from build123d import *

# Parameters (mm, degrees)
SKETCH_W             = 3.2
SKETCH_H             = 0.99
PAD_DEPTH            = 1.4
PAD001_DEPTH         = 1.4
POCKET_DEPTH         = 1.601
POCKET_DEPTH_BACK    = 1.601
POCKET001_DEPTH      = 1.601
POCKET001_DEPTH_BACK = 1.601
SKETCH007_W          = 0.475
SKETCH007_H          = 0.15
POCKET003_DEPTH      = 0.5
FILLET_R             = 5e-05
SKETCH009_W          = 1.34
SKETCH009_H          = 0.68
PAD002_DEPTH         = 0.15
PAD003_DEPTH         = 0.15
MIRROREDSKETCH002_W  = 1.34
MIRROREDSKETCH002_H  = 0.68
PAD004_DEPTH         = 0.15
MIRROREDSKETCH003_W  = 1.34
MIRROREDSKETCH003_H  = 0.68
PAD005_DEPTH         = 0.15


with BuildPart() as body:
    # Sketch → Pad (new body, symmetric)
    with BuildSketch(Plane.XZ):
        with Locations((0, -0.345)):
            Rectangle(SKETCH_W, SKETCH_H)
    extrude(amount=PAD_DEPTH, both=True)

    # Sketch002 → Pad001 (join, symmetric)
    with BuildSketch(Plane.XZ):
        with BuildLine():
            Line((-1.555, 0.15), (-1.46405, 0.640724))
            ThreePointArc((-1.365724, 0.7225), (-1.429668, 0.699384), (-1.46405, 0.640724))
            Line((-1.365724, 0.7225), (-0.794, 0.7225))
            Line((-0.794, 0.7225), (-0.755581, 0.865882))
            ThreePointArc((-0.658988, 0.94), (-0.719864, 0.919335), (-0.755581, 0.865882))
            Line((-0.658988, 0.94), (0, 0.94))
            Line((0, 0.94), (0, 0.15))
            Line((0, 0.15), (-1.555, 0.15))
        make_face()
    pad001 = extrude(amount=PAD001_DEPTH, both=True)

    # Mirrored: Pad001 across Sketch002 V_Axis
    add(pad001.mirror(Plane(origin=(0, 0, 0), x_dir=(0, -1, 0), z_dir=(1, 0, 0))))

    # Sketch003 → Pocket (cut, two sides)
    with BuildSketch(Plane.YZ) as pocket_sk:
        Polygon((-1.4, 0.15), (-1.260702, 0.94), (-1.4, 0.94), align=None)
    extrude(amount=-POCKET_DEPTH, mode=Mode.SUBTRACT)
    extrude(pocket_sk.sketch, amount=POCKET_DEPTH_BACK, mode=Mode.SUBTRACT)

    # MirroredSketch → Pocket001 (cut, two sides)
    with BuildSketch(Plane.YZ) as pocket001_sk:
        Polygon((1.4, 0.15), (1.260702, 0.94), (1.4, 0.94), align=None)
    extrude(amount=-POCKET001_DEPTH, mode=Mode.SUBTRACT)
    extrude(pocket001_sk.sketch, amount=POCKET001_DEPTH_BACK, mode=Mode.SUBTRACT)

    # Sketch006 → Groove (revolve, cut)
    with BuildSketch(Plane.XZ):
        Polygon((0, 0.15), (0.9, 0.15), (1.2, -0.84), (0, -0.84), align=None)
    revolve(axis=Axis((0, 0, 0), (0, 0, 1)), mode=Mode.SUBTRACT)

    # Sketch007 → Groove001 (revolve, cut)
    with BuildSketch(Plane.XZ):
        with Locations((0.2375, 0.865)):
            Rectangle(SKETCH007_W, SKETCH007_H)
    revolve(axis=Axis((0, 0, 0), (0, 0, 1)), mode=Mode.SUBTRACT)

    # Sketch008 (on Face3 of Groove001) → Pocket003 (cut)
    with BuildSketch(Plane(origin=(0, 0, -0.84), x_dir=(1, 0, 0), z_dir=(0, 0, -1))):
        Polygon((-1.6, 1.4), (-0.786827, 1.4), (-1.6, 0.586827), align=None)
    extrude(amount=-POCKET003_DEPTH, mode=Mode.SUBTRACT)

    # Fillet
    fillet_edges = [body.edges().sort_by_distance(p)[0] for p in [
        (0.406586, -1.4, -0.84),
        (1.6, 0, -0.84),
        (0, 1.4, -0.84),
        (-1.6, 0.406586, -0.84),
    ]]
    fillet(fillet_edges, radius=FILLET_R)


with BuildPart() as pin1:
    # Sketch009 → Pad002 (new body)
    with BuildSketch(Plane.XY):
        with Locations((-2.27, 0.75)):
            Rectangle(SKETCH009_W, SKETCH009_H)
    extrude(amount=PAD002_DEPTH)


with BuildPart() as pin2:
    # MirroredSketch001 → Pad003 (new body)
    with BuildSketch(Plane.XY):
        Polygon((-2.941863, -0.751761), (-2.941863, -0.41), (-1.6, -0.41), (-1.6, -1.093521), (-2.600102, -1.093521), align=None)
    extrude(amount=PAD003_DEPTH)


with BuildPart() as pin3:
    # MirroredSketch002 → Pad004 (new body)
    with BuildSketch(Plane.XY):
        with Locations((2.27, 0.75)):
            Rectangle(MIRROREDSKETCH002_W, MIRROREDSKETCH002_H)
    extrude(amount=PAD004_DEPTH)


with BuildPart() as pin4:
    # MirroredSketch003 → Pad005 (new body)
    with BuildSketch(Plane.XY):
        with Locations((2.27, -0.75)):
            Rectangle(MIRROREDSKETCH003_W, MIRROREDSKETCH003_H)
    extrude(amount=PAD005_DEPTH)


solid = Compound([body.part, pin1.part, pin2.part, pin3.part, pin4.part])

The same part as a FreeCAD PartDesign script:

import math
import FreeCAD as App
import Part
import Sketcher
Q = App.Units.Quantity


def edges_at(feature, points):
    """Names of the edges that pass closest to the given points."""
    edges = feature.Shape.Edges
    near = lambda p: min(range(len(edges)), key=lambda i: edges[i].distToShape(Part.Vertex(*p))[0])
    return sorted({f"Edge{near(p) + 1}" for p in points})

doc = App.newDocument("Part")
body = doc.addObject("PartDesign::Body", "Body")

# Sketch on XZ plane
sketch1 = body.newObject("Sketcher::SketchObject", "Sketch")
sketch1.AttachmentSupport = (doc.getObject("XZ_Plane"), [""])
sketch1.MapMode = "FlatFace"
sketch1.addGeometry([
    Part.LineSegment(App.Vector(-1.6, 0.1, 0), App.Vector(-1.6, -0.8, 0)),
    Part.LineSegment(App.Vector(-1.6, -0.8, 0), App.Vector(1.6, -0.8, 0)),
    Part.LineSegment(App.Vector(1.6, -0.8, 0), App.Vector(1.6, 0.1, 0)),
    Part.LineSegment(App.Vector(1.6, 0.1, 0), App.Vector(-1.6, 0.1, 0)),
], False)
sketch1.addConstraint([
    Sketcher.Constraint("Coincident", 0, 2, 1, 1),
    Sketcher.Constraint("Coincident", 1, 2, 2, 1),
    Sketcher.Constraint("Coincident", 2, 2, 3, 1),
    Sketcher.Constraint("Coincident", 3, 2, 0, 1),
    Sketcher.Constraint("Vertical", 0),
    Sketcher.Constraint("Horizontal", 1),
    Sketcher.Constraint("Vertical", 2),
    Sketcher.Constraint("Horizontal", 3),
    Sketcher.Constraint("DistanceX", 1, 1, 1, 2, Q("3.2 mm")),
    Sketcher.Constraint("DistanceY", 0, 2, 0, 1, Q("0.99 mm")),
    Sketcher.Constraint("DistanceX", 0, 2, -1, 1, Q("1.6 mm")),
    Sketcher.Constraint("DistanceY", 0, 2, -1, 1, Q("0.84 mm")),
])
pad1 = body.newObject("PartDesign::Pad", "Pad")
pad1.Profile = sketch1
pad1.Length = 2.8
pad1.Midplane = True

# Sketch on XZ plane
sketch2 = body.newObject("Sketcher::SketchObject", "Sketch001")
sketch2.AttachmentSupport = (doc.getObject("XZ_Plane"), [""])
sketch2.MapMode = "FlatFace"
sketch2.addGeometry([
    Part.LineSegment(App.Vector(-1.46, 0.64, 0), App.Vector(-1.55, 0.15, 0)),  # 0
    Part.LineSegment(App.Vector(-1.55, 0.15, 0), App.Vector(0, 0.15, 0)),  # 1
    Part.LineSegment(App.Vector(0, 0.15, 0), App.Vector(0, 0.94, 0)),  # 2
    Part.LineSegment(App.Vector(0, 0.94, 0), App.Vector(-0.66, 0.94, 0)),  # 3
    Part.ArcOfCircle(Part.Circle(App.Vector(-0.66, 0.84, 0), App.Vector(0, 0, 1), 0.1), math.radians(90), math.radians(165)),  # 4
    Part.LineSegment(App.Vector(-0.76, 0.87, 0), App.Vector(-0.79, 0.72, 0)),  # 5
    Part.LineSegment(App.Vector(-0.79, 0.72, 0), App.Vector(-1.37, 0.72, 0)),  # 6
    Part.ArcOfCircle(Part.Circle(App.Vector(-1.37, 0.62, 0), App.Vector(0, 0, 1), 0.1), math.radians(90), math.radians(169)),  # 7
], False)
sketch2.addConstraint([
    Sketcher.Constraint("Coincident", 0, 2, 1, 1),
    Sketcher.Constraint("Coincident", 1, 2, 2, 1),
    Sketcher.Constraint("Coincident", 2, 2, 3, 1),
    Sketcher.Constraint("Coincident", 3, 2, 4, 1),
    Sketcher.Constraint("Coincident", 4, 2, 5, 1),
    Sketcher.Constraint("Coincident", 5, 2, 6, 1),
    Sketcher.Constraint("Coincident", 6, 2, 7, 1),
    Sketcher.Constraint("Coincident", 7, 2, 0, 1),
    Sketcher.Constraint("Horizontal", 1),
    Sketcher.Constraint("Vertical", 2),
    Sketcher.Constraint("Horizontal", 3),
    Sketcher.Constraint("Horizontal", 6),
    Sketcher.Constraint("Equal", 4, 7),
    Sketcher.Constraint("PointOnObject", 1, 2, -2),
    Sketcher.Constraint("Vertical", 4, 3, 3, 2),
    Sketcher.Constraint("Vertical", 7, 3, 6, 2),
    Sketcher.Constraint("Radius", 7, Q("0.100002 mm")),
    Sketcher.Constraint("DistanceY", 2, 1, 2, 2, Q("0.79 mm")),
    Sketcher.Constraint("DistanceX", 1, 1, 1, 2, Q("1.555 mm")),
    Sketcher.Constraint("DistanceY", -1, 1, 0, 2, Q("0.15 mm")),
    Sketcher.Constraint("DistanceX", 5, 2, -1, 1, Q("0.794 mm")),
    Sketcher.Constraint("DistanceX", 3, 2, 3, 1, Q("0.658988 mm")),
    Sketcher.Constraint("DistanceY", -1, 1, 7, 3, Q("0.622498 mm")),
    Sketcher.Constraint("Distance", 0, Q("0.499081 mm")),
    Sketcher.Constraint("Distance", 5, Q("0.14844 mm")),
    Sketcher.Constraint("DistanceX", 6, 2, 6, 1, Q("0.571724 mm")),
])
pad2 = body.newObject("PartDesign::Pad", "Pad001")
pad2.Profile = sketch2
pad2.Length = 2.8
pad2.Midplane = True
doc.recompute()

mirrored = body.newObject("PartDesign::Mirrored", "Mirrored")
mirrored.Originals = [pad2]
mirrored.MirrorPlane = (doc.getObject("YZ_Plane"), [""])
body.Tip = mirrored

# Sketch on YZ plane
sketch3 = body.newObject("Sketcher::SketchObject", "Sketch002")
sketch3.AttachmentSupport = (doc.getObject("YZ_Plane"), [""])
sketch3.MapMode = "FlatFace"
sketch3.addGeometry([
    Part.LineSegment(App.Vector(-1.4, 0.15, 0), App.Vector(-1.26, 0.94, 0)),
    Part.LineSegment(App.Vector(-1.26, 0.94, 0), App.Vector(-1.4, 0.94, 0)),
    Part.LineSegment(App.Vector(-1.4, 0.94, 0), App.Vector(-1.4, 0.15, 0)),
], False)
sketch3.addConstraint([
    Sketcher.Constraint("Coincident", 0, 2, 1, 1),
    Sketcher.Constraint("Coincident", 1, 2, 2, 1),
    Sketcher.Constraint("Coincident", 2, 2, 0, 1),
    Sketcher.Constraint("Horizontal", 1),
    Sketcher.Constraint("Vertical", 2),
    Sketcher.Constraint("DistanceY", 2, 2, 2, 1, Q("0.79 mm")),
    Sketcher.Constraint("DistanceX", 1, 2, -1, 1, Q("1.4 mm")),
    Sketcher.Constraint("DistanceY", -1, 1, 0, 2, Q("0.94 mm")),
    Sketcher.Constraint("DistanceX", 1, 2, 1, 1, Q("0.139298 mm")),
])
pocket1 = body.newObject("PartDesign::Pocket", "Pocket")
pocket1.Profile = sketch3
pocket1.Type = "ThroughAll"
pocket1.Midplane = True

# Sketch on YZ plane
sketch4 = body.newObject("Sketcher::SketchObject", "Sketch003")
sketch4.AttachmentSupport = (doc.getObject("YZ_Plane"), [""])
sketch4.MapMode = "FlatFace"
sketch4.addGeometry([
    Part.LineSegment(App.Vector(1.26, 0.94, 0), App.Vector(1.4, 0.15, 0)),
    Part.LineSegment(App.Vector(1.4, 0.15, 0), App.Vector(1.4, 0.94, 0)),
    Part.LineSegment(App.Vector(1.4, 0.94, 0), App.Vector(1.26, 0.94, 0)),
], False)
sketch4.addConstraint([
    Sketcher.Constraint("Coincident", 0, 2, 1, 1),
    Sketcher.Constraint("Coincident", 1, 2, 2, 1),
    Sketcher.Constraint("Coincident", 2, 2, 0, 1),
    Sketcher.Constraint("Vertical", 1),
    Sketcher.Constraint("Horizontal", 2),
    Sketcher.Constraint("DistanceY", 1, 1, 1, 2, Q("0.79 mm")),
    Sketcher.Constraint("DistanceX", -1, 1, 0, 2, Q("1.4 mm")),
    Sketcher.Constraint("DistanceY", -1, 1, 0, 2, Q("0.15 mm")),
    Sketcher.Constraint("DistanceX", 2, 2, 2, 1, Q("0.139298 mm")),
])
pocket2 = body.newObject("PartDesign::Pocket", "Pocket001")
pocket2.Profile = sketch4
pocket2.Type = "ThroughAll"
pocket2.Midplane = True

# Sketch on XZ plane
sketch5 = body.newObject("Sketcher::SketchObject", "Sketch004")
sketch5.AttachmentSupport = (doc.getObject("XZ_Plane"), [""])
sketch5.MapMode = "FlatFace"
sketch5.addGeometry([
    Part.LineSegment(App.Vector(0.9, 0.1, 0), App.Vector(0, 0.1, 0)),
    Part.LineSegment(App.Vector(0, 0.1, 0), App.Vector(0, -0.8, 0)),
    Part.LineSegment(App.Vector(0, -0.8, 0), App.Vector(1.2, -0.8, 0)),
    Part.LineSegment(App.Vector(1.2, -0.8, 0), App.Vector(0.9, 0.1, 0)),
], False)
sketch5.addConstraint([
    Sketcher.Constraint("Coincident", 0, 2, 1, 1),
    Sketcher.Constraint("Coincident", 1, 2, 2, 1),
    Sketcher.Constraint("Coincident", 2, 2, 3, 1),
    Sketcher.Constraint("Coincident", 3, 2, 0, 1),
    Sketcher.Constraint("Horizontal", 0),
    Sketcher.Constraint("Vertical", 1),
    Sketcher.Constraint("Horizontal", 2),
    Sketcher.Constraint("PointOnObject", 0, 2, -2),
    Sketcher.Constraint("DistanceX", 0, 2, 0, 1, Q("0.9 mm")),
    Sketcher.Constraint("DistanceX", 2, 1, 2, 2, Q("1.2 mm")),
    Sketcher.Constraint("DistanceY", 1, 2, 1, 1, Q("0.99 mm")),
    Sketcher.Constraint("DistanceY", -1, 1, 0, 2, Q("0.15 mm")),
])
groove = body.newObject("PartDesign::Groove", "Groove")
groove.Profile = sketch5
groove.ReferenceAxis = (sketch5, ["V_Axis"])
groove.Angle = 360

# Sketch on XZ plane
sketch6 = body.newObject("Sketcher::SketchObject", "Sketch005")
sketch6.AttachmentSupport = (doc.getObject("XZ_Plane"), [""])
sketch6.MapMode = "FlatFace"
sketch6.addGeometry([
    Part.LineSegment(App.Vector(0, 0.94, 0), App.Vector(0, 0.79, 0)),
    Part.LineSegment(App.Vector(0, 0.79, 0), App.Vector(0.47, 0.79, 0)),
    Part.LineSegment(App.Vector(0.47, 0.79, 0), App.Vector(0.47, 0.94, 0)),
    Part.LineSegment(App.Vector(0.47, 0.94, 0), App.Vector(0, 0.94, 0)),
], False)
sketch6.addConstraint([
    Sketcher.Constraint("Coincident", 0, 2, 1, 1),
    Sketcher.Constraint("Coincident", 1, 2, 2, 1),
    Sketcher.Constraint("Coincident", 2, 2, 3, 1),
    Sketcher.Constraint("Coincident", 3, 2, 0, 1),
    Sketcher.Constraint("Vertical", 0),
    Sketcher.Constraint("Horizontal", 1),
    Sketcher.Constraint("Vertical", 2),
    Sketcher.Constraint("Horizontal", 3),
    Sketcher.Constraint("PointOnObject", 0, 2, -2),
    Sketcher.Constraint("DistanceY", 0, 2, 0, 1, Q("0.15 mm")),
    Sketcher.Constraint("DistanceX", 1, 1, 1, 2, Q("0.475 mm")),
    Sketcher.Constraint("DistanceY", -1, 1, 0, 2, Q("0.79 mm")),
])
groove2 = body.newObject("PartDesign::Groove", "Groove001")
groove2.Profile = sketch6
groove2.ReferenceAxis = (sketch6, ["V_Axis"])
groove2.Angle = 360

# Sketch on XY plane
sketch7 = body.newObject("Sketcher::SketchObject", "Sketch006")
sketch7.AttachmentSupport = (doc.getObject("XY_Plane"), [""])
sketch7.MapMode = "FlatFace"
sketch7.AttachmentOffset = App.Placement(App.Vector(0, 0, -0.84), App.Rotation())
sketch7.addGeometry([
    Part.LineSegment(App.Vector(-0.8, -1.4, 0), App.Vector(-1.6, -1.4, 0)),
    Part.LineSegment(App.Vector(-1.6, -1.4, 0), App.Vector(-1.6, -0.6, 0)),
    Part.LineSegment(App.Vector(-1.6, -0.6, 0), App.Vector(-0.8, -1.4, 0)),
], False)
sketch7.addConstraint([
    Sketcher.Constraint("Coincident", 0, 2, 1, 1),
    Sketcher.Constraint("Coincident", 1, 2, 2, 1),
    Sketcher.Constraint("Coincident", 2, 2, 0, 1),
    Sketcher.Constraint("Horizontal", 0),
    Sketcher.Constraint("Vertical", 1),
    Sketcher.Constraint("Equal", 0, 1),
    Sketcher.Constraint("DistanceX", 0, 2, -1, 1, Q("1.6 mm")),
    Sketcher.Constraint("DistanceY", 0, 2, -1, 1, Q("1.4 mm")),
    Sketcher.Constraint("Distance", 2, Q("1.15 mm")),
])
pocket3 = body.newObject("PartDesign::Pocket", "Pocket002")
pocket3.Profile = sketch7
pocket3.Length = 0.5
pocket3.Reversed = True
doc.recompute()

fillet = body.newObject("PartDesign::Fillet", "Fillet")
fillet.Base = (pocket3, edges_at(pocket3, [
    (0.407, -1.4, -0.84),
    (1.6, 0, -0.84),
    (0, 1.4, -0.84),
    (-1.6, 0.407, -0.84),
]))
fillet.Radius = 0.00005
body2 = doc.addObject("PartDesign::Body", "Body001")

# Sketch on XY plane
sketch8 = body2.newObject("Sketcher::SketchObject", "Sketch007")
sketch8.AttachmentSupport = (doc.getObject("XY_Plane001"), [""])
sketch8.MapMode = "FlatFace"
sketch8.addGeometry([
    Part.LineSegment(App.Vector(-2.9, 1.1, 0), App.Vector(-2.9, 0.4, 0)),
    Part.LineSegment(App.Vector(-2.9, 0.4, 0), App.Vector(-1.6, 0.4, 0)),
    Part.LineSegment(App.Vector(-1.6, 0.4, 0), App.Vector(-1.6, 1.1, 0)),
    Part.LineSegment(App.Vector(-1.6, 1.1, 0), App.Vector(-2.9, 1.1, 0)),
], False)
sketch8.addConstraint([
    Sketcher.Constraint("Coincident", 0, 2, 1, 1),
    Sketcher.Constraint("Coincident", 1, 2, 2, 1),
    Sketcher.Constraint("Coincident", 2, 2, 3, 1),
    Sketcher.Constraint("Coincident", 3, 2, 0, 1),
    Sketcher.Constraint("Vertical", 0),
    Sketcher.Constraint("Horizontal", 1),
    Sketcher.Constraint("Vertical", 2),
    Sketcher.Constraint("Horizontal", 3),
    Sketcher.Constraint("DistanceX", 1, 1, 1, 2, Q("1.34 mm")),
    Sketcher.Constraint("DistanceY", 0, 2, 0, 1, Q("0.68 mm")),
    Sketcher.Constraint("DistanceX", 1, 2, -1, 1, Q("1.6 mm")),
    Sketcher.Constraint("DistanceY", -1, 1, 0, 2, Q("0.41 mm")),
])
pad3 = body2.newObject("PartDesign::Pad", "Pad002")
pad3.Profile = sketch8
pad3.Length = 0.15
body3 = doc.addObject("PartDesign::Body", "Body002")

# Sketch on XY plane
sketch9 = body3.newObject("Sketcher::SketchObject", "Sketch008")
sketch9.AttachmentSupport = (doc.getObject("XY_Plane002"), [""])
sketch9.MapMode = "FlatFace"
sketch9.addGeometry([
    Part.LineSegment(App.Vector(-2.94, -0.41, 0), App.Vector(-2.94, -0.75, 0)),  # 0
    Part.LineSegment(App.Vector(-2.94, -0.75, 0), App.Vector(-2.6, -1.09, 0)),  # 1
    Part.LineSegment(App.Vector(-2.6, -1.09, 0), App.Vector(-1.6, -1.09, 0)),  # 2
    Part.LineSegment(App.Vector(-1.6, -1.09, 0), App.Vector(-1.6, -0.41, 0)),  # 3
    Part.LineSegment(App.Vector(-1.6, -0.41, 0), App.Vector(-2.94, -0.41, 0)),  # 4
], False)
sketch9.addConstraint([
    Sketcher.Constraint("Coincident", 0, 2, 1, 1),
    Sketcher.Constraint("Coincident", 1, 2, 2, 1),
    Sketcher.Constraint("Coincident", 2, 2, 3, 1),
    Sketcher.Constraint("Coincident", 3, 2, 4, 1),
    Sketcher.Constraint("Coincident", 4, 2, 0, 1),
    Sketcher.Constraint("Vertical", 0),
    Sketcher.Constraint("Horizontal", 2),
    Sketcher.Constraint("Vertical", 3),
    Sketcher.Constraint("Horizontal", 4),
    Sketcher.Constraint("DistanceX", 2, 2, -1, 1, Q("1.6 mm")),
    Sketcher.Constraint("DistanceY", 3, 2, -1, 1, Q("0.41 mm")),
    Sketcher.Constraint("DistanceY", 0, 2, 0, 1, Q("0.341761 mm")),
    Sketcher.Constraint("DistanceY", 3, 1, 3, 2, Q("0.683521 mm")),
    Sketcher.Constraint("DistanceX", 2, 1, 2, 2, Q("1.000102 mm")),
    Sketcher.Constraint("DistanceX", 4, 2, 4, 1, Q("1.341863 mm")),
])
pad4 = body3.newObject("PartDesign::Pad", "Pad003")
pad4.Profile = sketch9
pad4.Length = 0.15
body4 = doc.addObject("PartDesign::Body", "Body003")

# Sketch on XY plane
sketch10 = body4.newObject("Sketcher::SketchObject", "Sketch009")
sketch10.AttachmentSupport = (doc.getObject("XY_Plane003"), [""])
sketch10.MapMode = "FlatFace"
sketch10.addGeometry([
    Part.LineSegment(App.Vector(1.6, 1.1, 0), App.Vector(1.6, 0.4, 0)),
    Part.LineSegment(App.Vector(1.6, 0.4, 0), App.Vector(2.9, 0.4, 0)),
    Part.LineSegment(App.Vector(2.9, 0.4, 0), App.Vector(2.9, 1.1, 0)),
    Part.LineSegment(App.Vector(2.9, 1.1, 0), App.Vector(1.6, 1.1, 0)),
], False)
sketch10.addConstraint([
    Sketcher.Constraint("Coincident", 0, 2, 1, 1),
    Sketcher.Constraint("Coincident", 1, 2, 2, 1),
    Sketcher.Constraint("Coincident", 2, 2, 3, 1),
    Sketcher.Constraint("Coincident", 3, 2, 0, 1),
    Sketcher.Constraint("Vertical", 0),
    Sketcher.Constraint("Horizontal", 1),
    Sketcher.Constraint("Vertical", 2),
    Sketcher.Constraint("Horizontal", 3),
    Sketcher.Constraint("DistanceX", 1, 1, 1, 2, Q("1.34 mm")),
    Sketcher.Constraint("DistanceY", 0, 2, 0, 1, Q("0.68 mm")),
    Sketcher.Constraint("DistanceX", -1, 1, 0, 2, Q("1.6 mm")),
    Sketcher.Constraint("DistanceY", -1, 1, 0, 2, Q("0.41 mm")),
])
pad5 = body4.newObject("PartDesign::Pad", "Pad004")
pad5.Profile = sketch10
pad5.Length = 0.15
body5 = doc.addObject("PartDesign::Body", "Body004")

# Sketch on XY plane
sketch11 = body5.newObject("Sketcher::SketchObject", "Sketch010")
sketch11.AttachmentSupport = (doc.getObject("XY_Plane004"), [""])
sketch11.MapMode = "FlatFace"
sketch11.addGeometry([
    Part.LineSegment(App.Vector(1.6, -0.4, 0), App.Vector(1.6, -1.1, 0)),
    Part.LineSegment(App.Vector(1.6, -1.1, 0), App.Vector(2.9, -1.1, 0)),
    Part.LineSegment(App.Vector(2.9, -1.1, 0), App.Vector(2.9, -0.4, 0)),
    Part.LineSegment(App.Vector(2.9, -0.4, 0), App.Vector(1.6, -0.4, 0)),
], False)
sketch11.addConstraint([
    Sketcher.Constraint("Coincident", 0, 2, 1, 1),
    Sketcher.Constraint("Coincident", 1, 2, 2, 1),
    Sketcher.Constraint("Coincident", 2, 2, 3, 1),
    Sketcher.Constraint("Coincident", 3, 2, 0, 1),
    Sketcher.Constraint("Vertical", 0),
    Sketcher.Constraint("Horizontal", 1),
    Sketcher.Constraint("Vertical", 2),
    Sketcher.Constraint("Horizontal", 3),
    Sketcher.Constraint("DistanceX", 1, 1, 1, 2, Q("1.34 mm")),
    Sketcher.Constraint("DistanceY", 0, 2, 0, 1, Q("0.68 mm")),
    Sketcher.Constraint("DistanceX", -1, 1, 0, 2, Q("1.6 mm")),
    Sketcher.Constraint("DistanceY", 0, 2, -1, 1, Q("1.09 mm")),
])
pad6 = body5.newObject("PartDesign::Pad", "Pad005")
pad6.Profile = sketch11
pad6.Length = 0.15

doc.recompute()
